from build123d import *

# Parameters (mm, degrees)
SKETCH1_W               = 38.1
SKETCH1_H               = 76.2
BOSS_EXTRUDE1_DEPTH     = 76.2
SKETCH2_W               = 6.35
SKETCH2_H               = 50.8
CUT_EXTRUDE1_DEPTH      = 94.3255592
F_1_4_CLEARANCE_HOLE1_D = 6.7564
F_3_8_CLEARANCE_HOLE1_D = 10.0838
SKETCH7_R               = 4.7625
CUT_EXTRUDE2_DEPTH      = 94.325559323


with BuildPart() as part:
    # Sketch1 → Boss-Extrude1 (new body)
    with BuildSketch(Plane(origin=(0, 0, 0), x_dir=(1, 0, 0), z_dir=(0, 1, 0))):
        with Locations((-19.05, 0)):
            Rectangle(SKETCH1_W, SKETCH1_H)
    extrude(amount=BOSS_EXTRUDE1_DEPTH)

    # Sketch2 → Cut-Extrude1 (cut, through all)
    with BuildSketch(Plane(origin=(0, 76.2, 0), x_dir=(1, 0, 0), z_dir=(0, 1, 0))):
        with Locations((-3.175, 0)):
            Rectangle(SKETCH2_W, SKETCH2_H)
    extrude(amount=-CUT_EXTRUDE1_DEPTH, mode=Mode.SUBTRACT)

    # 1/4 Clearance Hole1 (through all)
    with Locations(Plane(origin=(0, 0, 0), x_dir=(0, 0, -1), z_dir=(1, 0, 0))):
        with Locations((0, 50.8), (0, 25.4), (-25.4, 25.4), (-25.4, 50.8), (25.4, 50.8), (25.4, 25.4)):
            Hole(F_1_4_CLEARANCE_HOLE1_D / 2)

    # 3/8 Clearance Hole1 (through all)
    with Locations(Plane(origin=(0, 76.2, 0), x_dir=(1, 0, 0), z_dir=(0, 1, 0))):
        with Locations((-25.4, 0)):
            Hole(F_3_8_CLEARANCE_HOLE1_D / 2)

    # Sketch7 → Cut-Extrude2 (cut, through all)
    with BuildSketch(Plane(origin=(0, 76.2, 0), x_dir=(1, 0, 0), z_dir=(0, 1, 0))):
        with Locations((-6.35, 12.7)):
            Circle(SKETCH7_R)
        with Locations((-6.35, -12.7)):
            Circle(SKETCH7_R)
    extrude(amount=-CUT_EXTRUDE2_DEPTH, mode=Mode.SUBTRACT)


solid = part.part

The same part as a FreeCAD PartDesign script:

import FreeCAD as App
import Part
import Sketcher

V = App.Vector
Q = App.Units.Quantity


def add_polygon(sketch, points):
    """Adds a closed chain of lines whose ends are joined by coincident constraints."""
    first, n = sketch.GeometryCount, len(points)
    for a, b in zip(points, points[1:] + points[:1]):
        sketch.addGeometry(Part.LineSegment(App.Vector(*a, 0), App.Vector(*b, 0)), False)
    for i in range(n):
        sketch.addConstraint(Sketcher.Constraint("Coincident", first + i, 2, first + (i + 1) % n, 1))

doc = App.newDocument("Part")
body = doc.addObject("PartDesign::Body", "Body")

# Sketch on XZ plane
sketch1 = body.newObject("Sketcher::SketchObject", "Sketch")
sketch1.AttachmentSupport = (doc.getObject("XZ_Plane"), [""])
sketch1.MapMode = "FlatFace"
add_polygon(sketch1, [(-38, -38), (-38, 38), (0, 38), (0, -38)])  # lines 0-3
sketch1.addConstraint([
    Sketcher.Constraint("Vertical", 0),
    Sketcher.Constraint("Horizontal", 1),
    Sketcher.Constraint("Vertical", 2),
    Sketcher.Constraint("Horizontal", 3),
    Sketcher.Constraint("Symmetric", 1, 2, 2, 2, -1, 1),
    Sketcher.Constraint("DistanceY", 0, 1, 0, 2, Q("3 in")),
    Sketcher.Constraint("DistanceX", 1, 1, 1, 2, Q("1.5 in")),
])
pad1 = body.newObject("PartDesign::Pad", "Pad")
pad1.Profile = sketch1
pad1.Length = Q("3 in")
pad1.Reversed = True

# Sketch on XZ plane
sketch2 = body.newObject("Sketcher::SketchObject", "Sketch001")
sketch2.AttachmentSupport = (doc.getObject("XZ_Plane"), [""])
sketch2.MapMode = "FlatFace"
sketch2.AttachmentOffset = App.Placement(V(0, 0, -3 * 25.4), App.Rotation())
add_polygon(sketch2, [(-6, -25), (-6, 25), (0, 25), (0, -25)])  # lines 0-3
sketch2.addConstraint([
    Sketcher.Constraint("Vertical", 0),
    Sketcher.Constraint("Horizontal", 1),
    Sketcher.Constraint("Vertical", 2),
    Sketcher.Constraint("Horizontal", 3),
    Sketcher.Constraint("Symmetric", 1, 2, 2, 2, -1, 1),
    Sketcher.Constraint("DistanceY", 0, 1, 0, 2, Q("2 in")),
    Sketcher.Constraint("DistanceX", 1, 1, 1, 2, Q("0.25 in")),
])
pocket1 = body.newObject("PartDesign::Pocket", "Pocket")
pocket1.Profile = sketch2
pocket1.Type = "ThroughAll"
pocket1.Reversed = True

# Sketch on YZ plane
sketch3 = body.newObject("Sketcher::SketchObject", "Sketch002")
sketch3.AttachmentSupport = (doc.getObject("YZ_Plane"), [""])
sketch3.MapMode = "FlatFace"
sketch3.addGeometry([
    Part.Circle(V(50.8, 0, 0), V(0, 0, 1), 3.4),  # 0
    Part.Circle(V(25.4, 0, 0), V(0, 0, 1), 3.4),  # 1
    Part.Circle(V(25.4, 25.4, 0), V(0, 0, 1), 3.4),  # 2
    Part.Circle(V(50.8, 25.4, 0), V(0, 0, 1), 3.4),  # 3
    Part.Circle(V(50.8, -25.4, 0), V(0, 0, 1), 3.4),  # 4
    Part.Circle(V(25.4, -25.4, 0), V(0, 0, 1), 3.4),  # 5
], False)
sketch3.addConstraint([
    Sketcher.Constraint("Equal", 0, 1),
    Sketcher.Constraint("Equal", 1, 2),
    Sketcher.Constraint("Equal", 2, 3),
    Sketcher.Constraint("Equal", 3, 4),
    Sketcher.Constraint("Equal", 4, 5),
    Sketcher.Constraint("Symmetric", 3, 3, 4, 3, -1),
    Sketcher.Constraint("Symmetric", 2, 3, 5, 3, -1),
    Sketcher.Constraint("PointOnObject", 0, 3, -1),
    Sketcher.Constraint("PointOnObject", 1, 3, -1),
    Sketcher.Constraint("Horizontal", 2, 3, 3, 3),
    Sketcher.Constraint("Vertical", 1, 3, 2, 3),
    Sketcher.Constraint("Vertical", 0, 3, 3, 3),
    Sketcher.Constraint("Diameter", 0, Q("0.266 in")),
    Sketcher.Constraint("DistanceX", -1, 1, 0, 3, Q("2 in")),
    Sketcher.Constraint("DistanceX", -1, 1, 1, 3, Q("1 in")),
    Sketcher.Constraint("DistanceY", -1, 1, 2, 3, Q("1 in")),
])
doc.recompute()
hole = body.newObject("PartDesign::Hole", "Hole")
hole.Profile = sketch3
hole.ThreadType = "None"
hole.Diameter = Q("0.266 in")
hole.DepthType = "ThroughAll"

# Sketch on XZ plane
sketch4 = body.newObject("Sketcher::SketchObject", "Sketch003")
sketch4.AttachmentSupport = (doc.getObject("XZ_Plane"), [""])
sketch4.MapMode = "FlatFace"
sketch4.AttachmentOffset = App.Placement(V(0, 0, -3 * 25.4), App.Rotation())
sketch4.addGeometry(Part.Circle(V(-25, 0, 0), V(0, 0, 1), 5), False)
sketch4.addConstraint([
    Sketcher.Constraint("PointOnObject", 0, 3, -1),
    Sketcher.Constraint("Diameter", 0, Q("0.397 in")),
    Sketcher.Constraint("DistanceX", 0, 3, -1, 1, Q("1 in")),
])
doc.recompute()
hole2 = body.newObject("PartDesign::Hole", "Hole001")
hole2.Profile = sketch4
hole2.ThreadType = "None"
hole2.Diameter = Q("0.397 in")
hole2.DepthType = "ThroughAll"
hole2.Reversed = True

# Sketch on XZ plane
sketch5 = body.newObject("Sketcher::SketchObject", "Sketch004")
sketch5.AttachmentSupport = (doc.getObject("XZ_Plane"), [""])
sketch5.MapMode = "FlatFace"
sketch5.AttachmentOffset = App.Placement(V(0, 0, -3 * 25.4), App.Rotation())
sketch5.addGeometry([
    Part.Circle(V(-6.3, -12.7, 0), V(0, 0, 1), 4.8),
    Part.Circle(V(-6.3, 12.7, 0), V(0, 0, 1), 4.8),
], False)
sketch5.addConstraint([
    Sketcher.Constraint("Equal", 0, 1),
    Sketcher.Constraint("Symmetric", 0, 3, 1, 3, -1),
    Sketcher.Constraint("Diameter", 0, Q("0.375 in")),
    Sketcher.Constraint("DistanceY", 0, 3, 1, 3, Q("1 in")),
    Sketcher.Constraint("DistanceX", 0, 3, -1, 1, Q("0.25 in")),
])
pocket2 = body.newObject("PartDesign::Pocket", "Pocket001")
pocket2.Profile = sketch5
pocket2.Type = "ThroughAll"
pocket2.Reversed = True

doc.recompute()
